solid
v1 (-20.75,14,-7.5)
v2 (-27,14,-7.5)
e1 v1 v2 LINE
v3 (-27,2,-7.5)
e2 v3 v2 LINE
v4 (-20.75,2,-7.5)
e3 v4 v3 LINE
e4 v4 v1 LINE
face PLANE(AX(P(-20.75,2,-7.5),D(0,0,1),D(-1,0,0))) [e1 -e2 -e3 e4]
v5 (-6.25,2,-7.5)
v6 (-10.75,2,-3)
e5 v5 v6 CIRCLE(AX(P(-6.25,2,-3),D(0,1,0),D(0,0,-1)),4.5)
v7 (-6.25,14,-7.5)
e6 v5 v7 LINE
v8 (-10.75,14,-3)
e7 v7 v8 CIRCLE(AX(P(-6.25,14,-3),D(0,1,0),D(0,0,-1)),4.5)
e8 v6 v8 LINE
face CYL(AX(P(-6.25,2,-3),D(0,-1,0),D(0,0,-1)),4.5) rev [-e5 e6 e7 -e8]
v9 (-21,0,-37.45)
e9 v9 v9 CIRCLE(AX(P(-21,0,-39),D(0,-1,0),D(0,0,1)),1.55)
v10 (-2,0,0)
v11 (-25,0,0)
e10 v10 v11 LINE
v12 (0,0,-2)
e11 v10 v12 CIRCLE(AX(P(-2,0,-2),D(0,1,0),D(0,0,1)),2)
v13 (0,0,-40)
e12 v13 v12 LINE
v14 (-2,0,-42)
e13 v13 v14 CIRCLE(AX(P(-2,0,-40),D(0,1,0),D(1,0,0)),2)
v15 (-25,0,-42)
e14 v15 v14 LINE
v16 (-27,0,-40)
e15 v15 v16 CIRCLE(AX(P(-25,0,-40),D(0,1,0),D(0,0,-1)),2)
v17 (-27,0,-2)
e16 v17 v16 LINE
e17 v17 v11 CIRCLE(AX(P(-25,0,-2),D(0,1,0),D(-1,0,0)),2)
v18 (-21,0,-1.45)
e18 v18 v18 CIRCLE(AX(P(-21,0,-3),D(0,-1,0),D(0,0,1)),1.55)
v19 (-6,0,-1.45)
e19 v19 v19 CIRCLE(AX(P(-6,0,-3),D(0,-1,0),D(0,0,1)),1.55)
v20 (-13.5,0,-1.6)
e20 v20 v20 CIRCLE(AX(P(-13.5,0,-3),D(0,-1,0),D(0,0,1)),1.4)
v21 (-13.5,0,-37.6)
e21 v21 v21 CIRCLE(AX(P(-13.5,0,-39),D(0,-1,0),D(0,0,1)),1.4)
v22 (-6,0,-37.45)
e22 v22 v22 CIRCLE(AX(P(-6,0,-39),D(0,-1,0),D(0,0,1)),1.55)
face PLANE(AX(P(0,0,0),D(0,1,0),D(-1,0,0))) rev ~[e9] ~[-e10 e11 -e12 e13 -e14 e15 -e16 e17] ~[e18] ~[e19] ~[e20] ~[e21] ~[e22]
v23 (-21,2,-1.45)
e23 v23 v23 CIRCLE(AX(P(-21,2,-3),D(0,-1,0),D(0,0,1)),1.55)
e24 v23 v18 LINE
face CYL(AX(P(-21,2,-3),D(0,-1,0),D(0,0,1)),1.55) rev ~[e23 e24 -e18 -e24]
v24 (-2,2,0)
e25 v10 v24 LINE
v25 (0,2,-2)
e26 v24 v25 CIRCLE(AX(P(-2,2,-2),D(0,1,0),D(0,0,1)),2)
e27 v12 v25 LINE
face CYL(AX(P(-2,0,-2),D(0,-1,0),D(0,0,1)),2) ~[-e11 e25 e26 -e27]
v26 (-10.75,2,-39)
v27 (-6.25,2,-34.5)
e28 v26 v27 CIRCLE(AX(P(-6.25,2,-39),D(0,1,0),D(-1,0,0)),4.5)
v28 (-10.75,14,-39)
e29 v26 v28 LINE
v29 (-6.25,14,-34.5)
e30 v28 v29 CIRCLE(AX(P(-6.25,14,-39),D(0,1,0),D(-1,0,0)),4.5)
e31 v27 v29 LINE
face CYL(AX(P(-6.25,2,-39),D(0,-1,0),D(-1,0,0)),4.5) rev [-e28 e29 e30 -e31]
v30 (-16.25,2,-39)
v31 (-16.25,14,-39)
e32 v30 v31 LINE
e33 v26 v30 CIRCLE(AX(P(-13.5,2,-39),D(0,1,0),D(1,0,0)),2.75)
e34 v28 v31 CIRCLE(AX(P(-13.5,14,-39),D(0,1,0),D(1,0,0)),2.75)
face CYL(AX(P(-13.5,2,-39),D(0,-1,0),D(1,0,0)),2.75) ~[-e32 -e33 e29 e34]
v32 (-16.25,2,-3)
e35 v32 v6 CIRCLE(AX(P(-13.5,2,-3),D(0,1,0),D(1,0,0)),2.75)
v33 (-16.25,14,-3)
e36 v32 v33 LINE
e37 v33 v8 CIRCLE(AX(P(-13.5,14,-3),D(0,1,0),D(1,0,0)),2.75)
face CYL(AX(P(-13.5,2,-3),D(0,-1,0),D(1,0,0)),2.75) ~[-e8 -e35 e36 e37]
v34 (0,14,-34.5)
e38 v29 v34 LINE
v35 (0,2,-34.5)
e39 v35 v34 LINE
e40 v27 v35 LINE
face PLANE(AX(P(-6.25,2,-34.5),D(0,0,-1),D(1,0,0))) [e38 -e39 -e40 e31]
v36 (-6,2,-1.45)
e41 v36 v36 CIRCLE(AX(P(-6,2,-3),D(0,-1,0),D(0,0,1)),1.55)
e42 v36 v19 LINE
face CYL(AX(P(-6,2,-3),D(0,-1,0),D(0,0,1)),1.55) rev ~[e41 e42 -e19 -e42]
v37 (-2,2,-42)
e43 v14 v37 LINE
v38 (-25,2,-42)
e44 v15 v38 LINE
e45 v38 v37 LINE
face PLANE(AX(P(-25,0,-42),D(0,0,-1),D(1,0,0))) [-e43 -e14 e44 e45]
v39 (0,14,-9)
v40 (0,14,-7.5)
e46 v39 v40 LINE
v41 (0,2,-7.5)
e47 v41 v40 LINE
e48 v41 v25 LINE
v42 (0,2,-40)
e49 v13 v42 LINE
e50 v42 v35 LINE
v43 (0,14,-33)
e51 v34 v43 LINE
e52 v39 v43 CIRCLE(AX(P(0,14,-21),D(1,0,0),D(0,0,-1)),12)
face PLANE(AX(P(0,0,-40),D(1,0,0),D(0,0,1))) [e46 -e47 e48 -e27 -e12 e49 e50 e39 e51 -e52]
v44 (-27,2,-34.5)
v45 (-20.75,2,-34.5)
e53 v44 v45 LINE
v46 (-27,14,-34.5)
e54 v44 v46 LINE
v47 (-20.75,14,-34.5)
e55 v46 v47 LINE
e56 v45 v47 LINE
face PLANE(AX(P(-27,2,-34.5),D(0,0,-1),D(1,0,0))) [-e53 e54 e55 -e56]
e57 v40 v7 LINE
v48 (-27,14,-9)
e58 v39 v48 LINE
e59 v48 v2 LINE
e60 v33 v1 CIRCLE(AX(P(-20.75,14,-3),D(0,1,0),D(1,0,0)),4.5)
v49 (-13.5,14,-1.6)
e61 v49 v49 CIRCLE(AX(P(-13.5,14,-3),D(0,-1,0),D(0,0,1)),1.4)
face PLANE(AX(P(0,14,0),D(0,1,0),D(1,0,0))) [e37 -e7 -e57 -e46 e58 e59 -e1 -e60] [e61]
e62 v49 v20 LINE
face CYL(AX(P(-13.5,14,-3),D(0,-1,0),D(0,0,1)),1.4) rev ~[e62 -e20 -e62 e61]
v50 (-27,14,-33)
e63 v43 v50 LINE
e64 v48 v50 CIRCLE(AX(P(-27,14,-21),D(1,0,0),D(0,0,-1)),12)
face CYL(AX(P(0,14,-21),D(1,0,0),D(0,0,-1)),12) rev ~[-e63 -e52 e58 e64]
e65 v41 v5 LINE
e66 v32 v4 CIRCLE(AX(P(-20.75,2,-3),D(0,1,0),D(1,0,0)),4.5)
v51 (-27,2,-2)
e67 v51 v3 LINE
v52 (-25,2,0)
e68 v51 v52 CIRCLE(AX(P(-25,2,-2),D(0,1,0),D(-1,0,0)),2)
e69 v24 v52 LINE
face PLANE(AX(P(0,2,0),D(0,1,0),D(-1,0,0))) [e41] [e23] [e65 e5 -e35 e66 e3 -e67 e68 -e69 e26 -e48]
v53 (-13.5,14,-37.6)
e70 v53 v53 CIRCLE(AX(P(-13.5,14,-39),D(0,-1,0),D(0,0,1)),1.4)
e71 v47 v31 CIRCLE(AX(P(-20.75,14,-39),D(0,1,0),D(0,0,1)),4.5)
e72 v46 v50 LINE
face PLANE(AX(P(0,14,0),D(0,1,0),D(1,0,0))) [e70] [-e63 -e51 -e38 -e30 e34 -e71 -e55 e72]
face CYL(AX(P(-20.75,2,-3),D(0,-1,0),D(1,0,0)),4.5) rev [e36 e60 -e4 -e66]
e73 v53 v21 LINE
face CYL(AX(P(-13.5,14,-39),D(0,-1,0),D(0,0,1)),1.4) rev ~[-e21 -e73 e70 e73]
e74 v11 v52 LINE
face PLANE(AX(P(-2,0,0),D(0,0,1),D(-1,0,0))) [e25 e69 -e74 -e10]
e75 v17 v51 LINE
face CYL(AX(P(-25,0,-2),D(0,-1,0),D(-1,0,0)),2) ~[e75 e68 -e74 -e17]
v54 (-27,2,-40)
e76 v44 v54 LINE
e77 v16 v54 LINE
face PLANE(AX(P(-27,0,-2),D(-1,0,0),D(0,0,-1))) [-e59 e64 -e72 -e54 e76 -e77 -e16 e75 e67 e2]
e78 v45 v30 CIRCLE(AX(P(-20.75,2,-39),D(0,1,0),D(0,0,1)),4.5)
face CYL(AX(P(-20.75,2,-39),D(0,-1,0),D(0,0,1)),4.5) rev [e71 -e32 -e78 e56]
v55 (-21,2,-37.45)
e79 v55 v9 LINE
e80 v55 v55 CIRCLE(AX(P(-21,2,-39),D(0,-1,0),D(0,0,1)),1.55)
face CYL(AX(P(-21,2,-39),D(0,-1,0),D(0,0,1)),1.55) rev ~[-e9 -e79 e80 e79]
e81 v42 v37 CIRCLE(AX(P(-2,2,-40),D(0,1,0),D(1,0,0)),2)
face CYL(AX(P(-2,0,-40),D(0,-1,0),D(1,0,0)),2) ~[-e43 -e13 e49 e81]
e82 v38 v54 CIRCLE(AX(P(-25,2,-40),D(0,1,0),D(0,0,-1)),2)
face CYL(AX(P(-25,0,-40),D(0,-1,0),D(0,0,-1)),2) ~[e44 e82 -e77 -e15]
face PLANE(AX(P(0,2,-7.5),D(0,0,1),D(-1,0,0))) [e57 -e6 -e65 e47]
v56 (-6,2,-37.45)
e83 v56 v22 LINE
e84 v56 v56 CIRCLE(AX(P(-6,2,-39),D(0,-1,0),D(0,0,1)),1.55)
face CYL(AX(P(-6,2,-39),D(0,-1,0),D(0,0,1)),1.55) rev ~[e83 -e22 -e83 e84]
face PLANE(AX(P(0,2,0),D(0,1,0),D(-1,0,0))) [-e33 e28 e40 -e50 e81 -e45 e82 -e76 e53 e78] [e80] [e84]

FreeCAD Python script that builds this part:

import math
import FreeCAD as App
import Part
import Sketcher

V = App.Vector
Q = App.Units.Quantity

doc = App.newDocument("Part")
body = doc.addObject("PartDesign::Body", "Body")

sketch1 = body.newObject("Sketcher::SketchObject", "Sketch")
sketch1.AttachmentSupport = (doc.getObject("XZ_Plane"), [""])
sketch1.MapMode = "FlatFace"
sketch1.addGeometry(Part.LineSegment(V(-25, 0, 0), V(-2, 0, 0)), False)
sketch1.addGeometry(Part.ArcOfCircle(Part.Circle(V(-2, -2, 0), V(0, 0, 1), 2), math.radians(0), math.radians(90)), False)
sketch1.addGeometry(Part.LineSegment(V(0, -2, 0), V(0, -40, 0)), False)
sketch1.addGeometry(Part.ArcOfCircle(Part.Circle(V(-2, -40, 0), V(0, 0, 1), 2), math.radians(-90), math.radians(0)), False)
sketch1.addGeometry(Part.LineSegment(V(-2, -42, 0), V(-25, -42, 0)), False)
sketch1.addGeometry(Part.ArcOfCircle(Part.Circle(V(-25, -40, 0), V(0, 0, 1), 2), math.radians(180), math.radians(270)), False)
sketch1.addGeometry(Part.LineSegment(V(-27, -40, 0), V(-27, -2, 0)), False)
sketch1.addGeometry(Part.ArcOfCircle(Part.Circle(V(-25, -2, 0), V(0, 0, 1), 2), math.radians(90), math.radians(180)), False)
sketch1.addConstraint(Sketcher.Constraint("Tangent", 0, 2, 1, 2))
sketch1.addConstraint(Sketcher.Constraint("Tangent", 1, 1, 2, 1))
sketch1.addConstraint(Sketcher.Constraint("Tangent", 2, 2, 3, 2))
sketch1.addConstraint(Sketcher.Constraint("Tangent", 3, 1, 4, 1))
sketch1.addConstraint(Sketcher.Constraint("Tangent", 4, 2, 5, 2))
sketch1.addConstraint(Sketcher.Constraint("Tangent", 5, 1, 6, 1))
sketch1.addConstraint(Sketcher.Constraint("Tangent", 6, 2, 7, 2))
sketch1.addConstraint(Sketcher.Constraint("Tangent", 7, 1, 0, 1))
sketch1.addConstraint(Sketcher.Constraint("Horizontal", 0))
sketch1.addConstraint(Sketcher.Constraint("Vertical", 2))
sketch1.addConstraint(Sketcher.Constraint("Horizontal", 4))
sketch1.addConstraint(Sketcher.Constraint("Vertical", 6))
sketch1.addConstraint(Sketcher.Constraint("Equal", 1, 3))
sketch1.addConstraint(Sketcher.Constraint("Equal", 3, 5))
sketch1.addConstraint(Sketcher.Constraint("Equal", 5, 7))
sketch1.addConstraint(Sketcher.Constraint("PointOnObject", 0, 2, -1))
sketch1.addConstraint(Sketcher.Constraint("PointOnObject", 1, 1, -2))
sketch1.addConstraint(Sketcher.Constraint("Radius", 1, Q("2 mm")))
sketch1.addConstraint(Sketcher.Constraint("DistanceY", 3, 1, -1, 1, Q("42 mm")))
sketch1.addConstraint(Sketcher.Constraint("DistanceX", 5, 1, -1, 1, Q("27 mm")))
pad1 = body.newObject("PartDesign::Pad", "Pad")
pad1.Profile = sketch1
pad1.Length = 2
pad1.Reversed = True

sketch2 = body.newObject("Sketcher::SketchObject", "Sketch001")
sketch2.AttachmentSupport = (doc.getObject("XZ_Plane"), [""])
sketch2.MapMode = "FlatFace"
sketch2.AttachmentOffset = App.Placement(V(0, 0, -2), App.Rotation())
sketch2.addGeometry(Part.Circle(V(-21, -39, 0), V(0, 0, 1), 1.6), False)
sketch2.addGeometry(Part.Circle(V(-6, -39, 0), V(0, 0, 1), 1.6), False)
sketch2.addGeometry(Part.Circle(V(-21, -3, 0), V(0, 0, 1), 1.6), False)
sketch2.addGeometry(Part.Circle(V(-6, -3, 0), V(0, 0, 1), 1.6), False)
sketch2.addConstraint(Sketcher.Constraint("Equal", 0, 1))
sketch2.addConstraint(Sketcher.Constraint("Equal", 1, 2))
sketch2.addConstraint(Sketcher.Constraint("Equal", 2, 3))
sketch2.addConstraint(Sketcher.Constraint("Horizontal", 0, 3, 1, 3))
sketch2.addConstraint(Sketcher.Constraint("Horizontal", 2, 3, 3, 3))
sketch2.addConstraint(Sketcher.Constraint("Vertical", 0, 3, 2, 3))
sketch2.addConstraint(Sketcher.Constraint("Vertical", 1, 3, 3, 3))
sketch2.addConstraint(Sketcher.Constraint("Diameter", 0, Q("3.1 mm")))
sketch2.addConstraint(Sketcher.Constraint("DistanceX", 0, 3, -1, 1, Q("21 mm")))
sketch2.addConstraint(Sketcher.Constraint("DistanceY", 0, 3, -1, 1, Q("39 mm")))
sketch2.addConstraint(Sketcher.Constraint("DistanceX", 1, 3, -1, 1, Q("6 mm")))
sketch2.addConstraint(Sketcher.Constraint("DistanceY", 2, 3, -1, 1, Q("3 mm")))
doc.recompute()
hole = body.newObject("PartDesign::Hole", "Hole")
hole.Profile = sketch2
hole.ThreadType = "None"
hole.Diameter = 3.1
hole.DepthType = "ThroughAll"
hole.Reversed = True

sketch3 = body.newObject("Sketcher::SketchObject", "Sketch002")
sketch3.AttachmentSupport = (doc.getObject("XZ_Plane"), [""])
sketch3.MapMode = "FlatFace"
sketch3.AttachmentOffset = App.Placement(V(0, 0, -2), App.Rotation())
sketch3.addGeometry(Part.LineSegment(V(-20.8, -34.5, 0), V(-27, -34.5, 0)), False)
sketch3.addGeometry(Part.LineSegment(V(-27, -34.5, 0), V(-27, -7.5, 0)), False)
sketch3.addGeometry(Part.LineSegment(V(-27, -7.5, 0), V(-20.8, -7.5, 0)), False)
sketch3.addGeometry(Part.ArcOfCircle(Part.Circle(V(-20.8, -3, 0), V(0, 0, 1), 4.5), math.radians(-90), math.radians(0)), False)
sketch3.addGeometry(Part.ArcOfCircle(Part.Circle(V(-13.5, -3, 0), V(0, 0, 1), 2.8), math.radians(0), math.radians(180)), False)
sketch3.addGeometry(Part.ArcOfCircle(Part.Circle(V(-6.2, -3, 0), V(0, 0, 1), 4.5), math.radians(180), math.radians(270)), False)
sketch3.addGeometry(Part.LineSegment(V(-6.2, -7.5, 0), V(0, -7.5, 0)), False)
sketch3.addGeometry(Part.LineSegment(V(0, -7.5, 0), V(0, -34.5, 0)), False)
sketch3.addGeometry(Part.LineSegment(V(0, -34.5, 0), V(-6.2, -34.5, 0)), False)
sketch3.addGeometry(Part.ArcOfCircle(Part.Circle(V(-6.2, -39, 0), V(0, 0, 1), 4.5), math.radians(90), math.radians(180)), False)
sketch3.addGeometry(Part.ArcOfCircle(Part.Circle(V(-13.5, -39, 0), V(0, 0, 1), 2.8), math.radians(180), math.radians(360)), False)
sketch3.addGeometry(Part.ArcOfCircle(Part.Circle(V(-20.8, -39, 0), V(0, 0, 1), 4.5), math.radians(0), math.radians(90)), False)
sketch3.addConstraint(Sketcher.Constraint("Coincident", 0, 2, 1, 1))
sketch3.addConstraint(Sketcher.Constraint("Coincident", 1, 2, 2, 1))
sketch3.addConstraint(Sketcher.Constraint("Tangent", 2, 2, 3, 1))
sketch3.addConstraint(Sketcher.Constraint("Tangent", 3, 2, 4, 2))
sketch3.addConstraint(Sketcher.Constraint("Tangent", 4, 1, 5, 1))
sketch3.addConstraint(Sketcher.Constraint("Tangent", 5, 2, 6, 1))
sketch3.addConstraint(Sketcher.Constraint("Coincident", 6, 2, 7, 1))
sketch3.addConstraint(Sketcher.Constraint("Coincident", 7, 2, 8, 1))
sketch3.addConstraint(Sketcher.Constraint("Tangent", 8, 2, 9, 1))
sketch3.addConstraint(Sketcher.Constraint("Tangent", 9, 2, 10, 2))
sketch3.addConstraint(Sketcher.Constraint("Tangent", 10, 1, 11, 1))
sketch3.addConstraint(Sketcher.Constraint("Tangent", 11, 2, 0, 1))
sketch3.addConstraint(Sketcher.Constraint("Horizontal", 0))
sketch3.addConstraint(Sketcher.Constraint("Vertical", 1))
sketch3.addConstraint(Sketcher.Constraint("Horizontal", 2))
sketch3.addConstraint(Sketcher.Constraint("Horizontal", 6))
sketch3.addConstraint(Sketcher.Constraint("Vertical", 7))
sketch3.addConstraint(Sketcher.Constraint("Horizontal", 8))
sketch3.addConstraint(Sketcher.Constraint("Equal", 3, 5))
sketch3.addConstraint(Sketcher.Constraint("Equal", 5, 9))
sketch3.addConstraint(Sketcher.Constraint("Equal", 4, 10))
sketch3.addConstraint(Sketcher.Constraint("Equal", 9, 11))
sketch3.addConstraint(Sketcher.Constraint("PointOnObject", 6, 2, -2))
sketch3.addConstraint(Sketcher.Constraint("Horizontal", 3, 3, 4, 3))
sketch3.addConstraint(Sketcher.Constraint("Horizontal", 4, 3, 5, 3))
sketch3.addConstraint(Sketcher.Constraint("Horizontal", 9, 3, 10, 3))
sketch3.addConstraint(Sketcher.Constraint("Horizontal", 10, 3, 11, 3))
sketch3.addConstraint(Sketcher.Constraint("Vertical", 5, 3, 9, 3))
sketch3.addConstraint(Sketcher.Constraint("Equal", 2, 6))
sketch3.addConstraint(Sketcher.Constraint("Radius", 3, Q("4.5 mm")))
sketch3.addConstraint(Sketcher.Constraint("DistanceY", 1, 1, 1, 2, Q("27 mm")))
sketch3.addConstraint(Sketcher.Constraint("Radius", 4, Q("2.75 mm")))
sketch3.addConstraint(Sketcher.Constraint("DistanceX", 0, 2, -1, 1, Q("27 mm")))
sketch3.addConstraint(Sketcher.Constraint("DistanceY", 3, 3, -1, 1, Q("3 mm")))
pad2 = body.newObject("PartDesign::Pad", "Pad001")
pad2.Profile = sketch3
pad2.Length = 12
pad2.Reversed = True

sketch4 = body.newObject("Sketcher::SketchObject", "Sketch003")
sketch4.AttachmentSupport = (doc.getObject("YZ_Plane"), [""])
sketch4.MapMode = "FlatFace"
sketch4.addGeometry(Part.ArcOfCircle(Part.Circle(V(14, -21, 0), V(0, 0, 1), 12), math.radians(90), math.radians(270)), False)
sketch4.addGeometry(Part.LineSegment(V(14, -33, 0), V(14, -9, 0)), False)
sketch4.addConstraint(Sketcher.Constraint("Coincident", 0, 1, 1, 2))
sketch4.addConstraint(Sketcher.Constraint("Coincident", 1, 1, 0, 2))
sketch4.addConstraint(Sketcher.Constraint("Vertical", 1))
sketch4.addConstraint(Sketcher.Constraint("Radius", 0, Q("12 mm")))
sketch4.addConstraint(Sketcher.Constraint("DistanceX", -1, 1, 0, 3, Q("14 mm")))
sketch4.addConstraint(Sketcher.Constraint("DistanceY", 0, 3, -1, 1, Q("21 mm")))
sketch4.addConstraint(Sketcher.Constraint("DistanceX", -1, 1, 0, 1, Q("14 mm")))
pocket1 = body.newObject("PartDesign::Pocket", "Pocket")
pocket1.Profile = sketch4
pocket1.Type = "ThroughAll"

sketch5 = body.newObject("Sketcher::SketchObject", "Sketch004")
sketch5.AttachmentSupport = (doc.getObject("XZ_Plane"), [""])
sketch5.MapMode = "FlatFace"
sketch5.AttachmentOffset = App.Placement(V(0, 0, -14), App.Rotation())
sketch5.addGeometry(Part.Circle(V(-13.5, -39, 0), V(0, 0, 1), 1.4), False)
sketch5.addGeometry(Part.Circle(V(-13.5, -3, 0), V(0, 0, 1), 1.4), False)
sketch5.addConstraint(Sketcher.Constraint("Equal", 0, 1))
sketch5.addConstraint(Sketcher.Constraint("Vertical", 0, 3, 1, 3))
sketch5.addConstraint(Sketcher.Constraint("Diameter", 0, Q("2.8 mm")))
sketch5.addConstraint(Sketcher.Constraint("DistanceY", 0, 3, -1, 1, Q("39 mm")))
sketch5.addConstraint(Sketcher.Constraint("DistanceY", 1, 3, -1, 1, Q("3 mm")))
sketch5.addConstraint(Sketcher.Constraint("DistanceX", 0, 3, -1, 1, Q("13.5 mm")))
doc.recompute()
hole2 = body.newObject("PartDesign::Hole", "Hole001")
hole2.Profile = sketch5
hole2.ThreadType = "None"
hole2.Diameter = 2.8
hole2.DepthType = "ThroughAll"
hole2.Reversed = True

doc.recompute()
